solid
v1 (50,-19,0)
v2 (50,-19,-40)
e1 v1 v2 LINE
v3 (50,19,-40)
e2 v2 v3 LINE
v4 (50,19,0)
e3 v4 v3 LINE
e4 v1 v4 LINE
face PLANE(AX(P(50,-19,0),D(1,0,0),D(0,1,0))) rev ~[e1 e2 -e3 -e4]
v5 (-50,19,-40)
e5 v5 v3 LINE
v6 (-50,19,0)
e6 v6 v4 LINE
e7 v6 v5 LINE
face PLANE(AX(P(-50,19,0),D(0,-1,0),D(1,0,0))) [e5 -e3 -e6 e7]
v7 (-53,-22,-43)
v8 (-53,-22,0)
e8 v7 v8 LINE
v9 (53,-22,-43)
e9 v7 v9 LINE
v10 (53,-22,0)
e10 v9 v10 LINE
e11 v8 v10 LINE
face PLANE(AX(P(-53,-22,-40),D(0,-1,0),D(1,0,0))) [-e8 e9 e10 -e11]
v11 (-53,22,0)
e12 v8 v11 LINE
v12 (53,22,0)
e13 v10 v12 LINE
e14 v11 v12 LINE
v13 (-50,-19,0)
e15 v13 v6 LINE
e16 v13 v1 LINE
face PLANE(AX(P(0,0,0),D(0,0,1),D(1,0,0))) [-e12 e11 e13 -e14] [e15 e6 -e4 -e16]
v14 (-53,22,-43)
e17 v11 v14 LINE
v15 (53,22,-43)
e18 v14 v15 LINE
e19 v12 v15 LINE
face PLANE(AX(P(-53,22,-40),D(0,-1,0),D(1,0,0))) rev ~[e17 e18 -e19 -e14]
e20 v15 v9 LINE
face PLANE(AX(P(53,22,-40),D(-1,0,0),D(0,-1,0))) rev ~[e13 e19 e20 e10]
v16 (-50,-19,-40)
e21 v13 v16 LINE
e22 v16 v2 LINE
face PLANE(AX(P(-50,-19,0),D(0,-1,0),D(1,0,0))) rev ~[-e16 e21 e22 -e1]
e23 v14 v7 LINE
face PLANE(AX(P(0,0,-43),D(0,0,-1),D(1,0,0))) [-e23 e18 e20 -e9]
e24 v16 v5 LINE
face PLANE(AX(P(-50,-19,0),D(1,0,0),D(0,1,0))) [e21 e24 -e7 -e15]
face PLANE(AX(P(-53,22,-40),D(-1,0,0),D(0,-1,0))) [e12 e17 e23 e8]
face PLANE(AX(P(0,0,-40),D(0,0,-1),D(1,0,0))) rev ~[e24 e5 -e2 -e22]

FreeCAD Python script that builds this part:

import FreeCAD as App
import Part
import Sketcher

V = App.Vector


def add_polygon(sketch, points):
    """Adds a closed chain of lines whose ends are joined by coincident constraints."""
    first, n = sketch.GeometryCount, len(points)
    for a, b in zip(points, points[1:] + points[:1]):
        sketch.addGeometry(Part.LineSegment(App.Vector(*a, 0), App.Vector(*b, 0)), False)
    for i in range(n):
        sketch.addConstraint(Sketcher.Constraint("Coincident", first + i, 2, first + (i + 1) % n, 1))

doc = App.newDocument("Part")
body = doc.addObject("PartDesign::Body", "Body")

# Sketch on XY plane
sketch1 = doc.addObject("Sketcher::SketchObject", "Sketch")
body.addObject(sketch1)
sketch1.AttachmentSupport = (doc.XY_Plane, [""])
sketch1.MapMode = "FlatFace"
add_polygon(sketch1, [(-53, 22), (-53, -22), (53, -22), (53, 22)])  # lines 0-3
add_polygon(sketch1, [(50, -19), (-50, -19), (-50, 19), (50, 19)])  # lines 4-7
sketch1.addConstraint(Sketcher.Constraint("Vertical", 0))
sketch1.addConstraint(Sketcher.Constraint("Horizontal", 1))
sketch1.addConstraint(Sketcher.Constraint("Vertical", 2))
sketch1.addConstraint(Sketcher.Constraint("Horizontal", 3))
sketch1.addConstraint(Sketcher.Constraint("Horizontal", 4))
sketch1.addConstraint(Sketcher.Constraint("Vertical", 5))
sketch1.addConstraint(Sketcher.Constraint("Horizontal", 6))
sketch1.addConstraint(Sketcher.Constraint("Vertical", 7))
sketch1.addConstraint(Sketcher.Constraint("Symmetric", 0, 2, 2, 2, -1, 1))
sketch1.addConstraint(Sketcher.Constraint("Symmetric", 4, 2, 6, 2, -1, 1))
sketch1.addConstraint(Sketcher.Constraint("DistanceX", 1, 1, 1, 2, 106.0))
sketch1.addConstraint(Sketcher.Constraint("DistanceX", 4, 2, 4, 1, 100.0))
sketch1.addConstraint(Sketcher.Constraint("DistanceY", 0, 2, 0, 1, 44.0))
sketch1.addConstraint(Sketcher.Constraint("DistanceY", 5, 1, 5, 2, 38.0))
pad1 = doc.addObject("PartDesign::Pad", "Pad")
body.addObject(pad1)
pad1.Profile = sketch1
pad1.Length = 40
pad1.Reversed = True

# Sketch on XY plane
sketch2 = doc.addObject("Sketcher::SketchObject", "Sketch001")
body.addObject(sketch2)
sketch2.AttachmentSupport = (doc.XY_Plane, [""])
sketch2.MapMode = "FlatFace"
sketch2.AttachmentOffset = App.Placement(V(0, 0, -40), App.Rotation())
add_polygon(sketch2, [(-53, -22), (-53, 22), (53, 22), (53, -22)])  # lines 0-3
sketch2.addConstraint(Sketcher.Constraint("Vertical", 0))
sketch2.addConstraint(Sketcher.Constraint("Horizontal", 1))
sketch2.addConstraint(Sketcher.Constraint("Vertical", 2))
sketch2.addConstraint(Sketcher.Constraint("Horizontal", 3))
sketch2.addConstraint(Sketcher.Constraint("Symmetric", 0, 2, 2, 2, -1, 1))
sketch2.addConstraint(Sketcher.Constraint("DistanceX", 1, 1, 1, 2, 106.0))
sketch2.addConstraint(Sketcher.Constraint("DistanceY", 0, 1, 0, 2, 44.0))
pad2 = doc.addObject("PartDesign::Pad", "Pad001")
body.addObject(pad2)
pad2.Profile = sketch2
pad2.Length = 3
pad2.Reversed = True

doc.recompute()
